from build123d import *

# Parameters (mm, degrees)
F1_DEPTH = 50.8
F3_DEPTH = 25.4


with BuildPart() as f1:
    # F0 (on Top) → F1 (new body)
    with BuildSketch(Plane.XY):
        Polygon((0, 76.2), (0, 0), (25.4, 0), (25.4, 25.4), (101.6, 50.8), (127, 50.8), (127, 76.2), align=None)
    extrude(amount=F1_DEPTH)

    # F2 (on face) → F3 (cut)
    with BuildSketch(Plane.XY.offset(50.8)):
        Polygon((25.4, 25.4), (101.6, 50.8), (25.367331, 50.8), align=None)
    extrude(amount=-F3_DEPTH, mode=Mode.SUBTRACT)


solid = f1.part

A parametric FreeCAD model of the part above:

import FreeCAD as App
import Part
import Sketcher
from FreeCAD import Vector
Q = App.Units.Quantity


def add_polygon(sketch, points):
    """Adds a closed chain of lines whose ends are joined by coincident constraints."""
    first, n = sketch.GeometryCount, len(points)
    for a, b in zip(points, points[1:] + points[:1]):
        sketch.addGeometry(Part.LineSegment(App.Vector(*a, 0), App.Vector(*b, 0)), False)
    for i in range(n):
        sketch.addConstraint(Sketcher.Constraint("Coincident", first + i, 2, first + (i + 1) % n, 1))

doc = App.newDocument("Part")
body = doc.addObject("PartDesign::Body", "Body")

sketch1 = body.newObject("Sketcher::SketchObject", "Sketch")
sketch1.AttachmentSupport = (doc.getObject("XY_Plane"), [""])
sketch1.MapMode = "FlatFace"
add_polygon(sketch1, [(0, 76.2), (0, 0), (25.4, 0), (25.4, 25.4), (101.6, 50.8), (127, 50.8), (127, 76.2)])
sketch1.addConstraint([
    Sketcher.Constraint("Vertical", 0),
    Sketcher.Constraint("Horizontal", 1),
    Sketcher.Constraint("Vertical", 2),
    Sketcher.Constraint("Horizontal", 4),
    Sketcher.Constraint("Vertical", 5),
    Sketcher.Constraint("Horizontal", 6),
    Sketcher.Constraint("Coincident", 0, 2, -1, 1),
    Sketcher.Constraint("Equal", 1, 4),
    Sketcher.Constraint("Equal", 4, 2),
    Sketcher.Constraint("Equal", 2, 5),
    Sketcher.Constraint("DistanceX", 1, 1, 1, 2, Q("1 in")),
    Sketcher.Constraint("DistanceX", 6, 2, 6, 1, Q("5 in")),
    Sketcher.Constraint("DistanceY", 0, 2, 0, 1, Q("3 in")),
])
pad1 = body.newObject("PartDesign::Pad", "Pad")
pad1.Profile = sketch1
pad1.Length = Q("2 in")

sketch2 = body.newObject("Sketcher::SketchObject", "Sketch001")
sketch2.AttachmentSupport = (doc.getObject("XY_Plane"), [""])
sketch2.MapMode = "FlatFace"
sketch2.AttachmentOffset = App.Placement(Vector(0, 0, 2 * 25.4), App.Rotation())
add_polygon(sketch2, [(25.4, 25.4), (101.6, 50.8), (25.367331, 50.8)])
sketch2.addConstraint([
    Sketcher.Constraint("Horizontal", 1),
    Sketcher.Constraint("DistanceX", -1, 1, 0, 2, Q("4 in")),
    Sketcher.Constraint("DistanceY", -1, 1, 0, 2, Q("2 in")),
    Sketcher.Constraint("DistanceX", -1, 1, 2, 2, Q("1 in")),
    Sketcher.Constraint("DistanceY", -1, 1, 2, 2, Q("1 in")),
    Sketcher.Constraint("DistanceX", 1, 2, 1, 1, 76.232669),
])
pocket1 = body.newObject("PartDesign::Pocket", "Pocket")
pocket1.Profile = sketch2
pocket1.Length = Q("1 in")

doc.recompute()
